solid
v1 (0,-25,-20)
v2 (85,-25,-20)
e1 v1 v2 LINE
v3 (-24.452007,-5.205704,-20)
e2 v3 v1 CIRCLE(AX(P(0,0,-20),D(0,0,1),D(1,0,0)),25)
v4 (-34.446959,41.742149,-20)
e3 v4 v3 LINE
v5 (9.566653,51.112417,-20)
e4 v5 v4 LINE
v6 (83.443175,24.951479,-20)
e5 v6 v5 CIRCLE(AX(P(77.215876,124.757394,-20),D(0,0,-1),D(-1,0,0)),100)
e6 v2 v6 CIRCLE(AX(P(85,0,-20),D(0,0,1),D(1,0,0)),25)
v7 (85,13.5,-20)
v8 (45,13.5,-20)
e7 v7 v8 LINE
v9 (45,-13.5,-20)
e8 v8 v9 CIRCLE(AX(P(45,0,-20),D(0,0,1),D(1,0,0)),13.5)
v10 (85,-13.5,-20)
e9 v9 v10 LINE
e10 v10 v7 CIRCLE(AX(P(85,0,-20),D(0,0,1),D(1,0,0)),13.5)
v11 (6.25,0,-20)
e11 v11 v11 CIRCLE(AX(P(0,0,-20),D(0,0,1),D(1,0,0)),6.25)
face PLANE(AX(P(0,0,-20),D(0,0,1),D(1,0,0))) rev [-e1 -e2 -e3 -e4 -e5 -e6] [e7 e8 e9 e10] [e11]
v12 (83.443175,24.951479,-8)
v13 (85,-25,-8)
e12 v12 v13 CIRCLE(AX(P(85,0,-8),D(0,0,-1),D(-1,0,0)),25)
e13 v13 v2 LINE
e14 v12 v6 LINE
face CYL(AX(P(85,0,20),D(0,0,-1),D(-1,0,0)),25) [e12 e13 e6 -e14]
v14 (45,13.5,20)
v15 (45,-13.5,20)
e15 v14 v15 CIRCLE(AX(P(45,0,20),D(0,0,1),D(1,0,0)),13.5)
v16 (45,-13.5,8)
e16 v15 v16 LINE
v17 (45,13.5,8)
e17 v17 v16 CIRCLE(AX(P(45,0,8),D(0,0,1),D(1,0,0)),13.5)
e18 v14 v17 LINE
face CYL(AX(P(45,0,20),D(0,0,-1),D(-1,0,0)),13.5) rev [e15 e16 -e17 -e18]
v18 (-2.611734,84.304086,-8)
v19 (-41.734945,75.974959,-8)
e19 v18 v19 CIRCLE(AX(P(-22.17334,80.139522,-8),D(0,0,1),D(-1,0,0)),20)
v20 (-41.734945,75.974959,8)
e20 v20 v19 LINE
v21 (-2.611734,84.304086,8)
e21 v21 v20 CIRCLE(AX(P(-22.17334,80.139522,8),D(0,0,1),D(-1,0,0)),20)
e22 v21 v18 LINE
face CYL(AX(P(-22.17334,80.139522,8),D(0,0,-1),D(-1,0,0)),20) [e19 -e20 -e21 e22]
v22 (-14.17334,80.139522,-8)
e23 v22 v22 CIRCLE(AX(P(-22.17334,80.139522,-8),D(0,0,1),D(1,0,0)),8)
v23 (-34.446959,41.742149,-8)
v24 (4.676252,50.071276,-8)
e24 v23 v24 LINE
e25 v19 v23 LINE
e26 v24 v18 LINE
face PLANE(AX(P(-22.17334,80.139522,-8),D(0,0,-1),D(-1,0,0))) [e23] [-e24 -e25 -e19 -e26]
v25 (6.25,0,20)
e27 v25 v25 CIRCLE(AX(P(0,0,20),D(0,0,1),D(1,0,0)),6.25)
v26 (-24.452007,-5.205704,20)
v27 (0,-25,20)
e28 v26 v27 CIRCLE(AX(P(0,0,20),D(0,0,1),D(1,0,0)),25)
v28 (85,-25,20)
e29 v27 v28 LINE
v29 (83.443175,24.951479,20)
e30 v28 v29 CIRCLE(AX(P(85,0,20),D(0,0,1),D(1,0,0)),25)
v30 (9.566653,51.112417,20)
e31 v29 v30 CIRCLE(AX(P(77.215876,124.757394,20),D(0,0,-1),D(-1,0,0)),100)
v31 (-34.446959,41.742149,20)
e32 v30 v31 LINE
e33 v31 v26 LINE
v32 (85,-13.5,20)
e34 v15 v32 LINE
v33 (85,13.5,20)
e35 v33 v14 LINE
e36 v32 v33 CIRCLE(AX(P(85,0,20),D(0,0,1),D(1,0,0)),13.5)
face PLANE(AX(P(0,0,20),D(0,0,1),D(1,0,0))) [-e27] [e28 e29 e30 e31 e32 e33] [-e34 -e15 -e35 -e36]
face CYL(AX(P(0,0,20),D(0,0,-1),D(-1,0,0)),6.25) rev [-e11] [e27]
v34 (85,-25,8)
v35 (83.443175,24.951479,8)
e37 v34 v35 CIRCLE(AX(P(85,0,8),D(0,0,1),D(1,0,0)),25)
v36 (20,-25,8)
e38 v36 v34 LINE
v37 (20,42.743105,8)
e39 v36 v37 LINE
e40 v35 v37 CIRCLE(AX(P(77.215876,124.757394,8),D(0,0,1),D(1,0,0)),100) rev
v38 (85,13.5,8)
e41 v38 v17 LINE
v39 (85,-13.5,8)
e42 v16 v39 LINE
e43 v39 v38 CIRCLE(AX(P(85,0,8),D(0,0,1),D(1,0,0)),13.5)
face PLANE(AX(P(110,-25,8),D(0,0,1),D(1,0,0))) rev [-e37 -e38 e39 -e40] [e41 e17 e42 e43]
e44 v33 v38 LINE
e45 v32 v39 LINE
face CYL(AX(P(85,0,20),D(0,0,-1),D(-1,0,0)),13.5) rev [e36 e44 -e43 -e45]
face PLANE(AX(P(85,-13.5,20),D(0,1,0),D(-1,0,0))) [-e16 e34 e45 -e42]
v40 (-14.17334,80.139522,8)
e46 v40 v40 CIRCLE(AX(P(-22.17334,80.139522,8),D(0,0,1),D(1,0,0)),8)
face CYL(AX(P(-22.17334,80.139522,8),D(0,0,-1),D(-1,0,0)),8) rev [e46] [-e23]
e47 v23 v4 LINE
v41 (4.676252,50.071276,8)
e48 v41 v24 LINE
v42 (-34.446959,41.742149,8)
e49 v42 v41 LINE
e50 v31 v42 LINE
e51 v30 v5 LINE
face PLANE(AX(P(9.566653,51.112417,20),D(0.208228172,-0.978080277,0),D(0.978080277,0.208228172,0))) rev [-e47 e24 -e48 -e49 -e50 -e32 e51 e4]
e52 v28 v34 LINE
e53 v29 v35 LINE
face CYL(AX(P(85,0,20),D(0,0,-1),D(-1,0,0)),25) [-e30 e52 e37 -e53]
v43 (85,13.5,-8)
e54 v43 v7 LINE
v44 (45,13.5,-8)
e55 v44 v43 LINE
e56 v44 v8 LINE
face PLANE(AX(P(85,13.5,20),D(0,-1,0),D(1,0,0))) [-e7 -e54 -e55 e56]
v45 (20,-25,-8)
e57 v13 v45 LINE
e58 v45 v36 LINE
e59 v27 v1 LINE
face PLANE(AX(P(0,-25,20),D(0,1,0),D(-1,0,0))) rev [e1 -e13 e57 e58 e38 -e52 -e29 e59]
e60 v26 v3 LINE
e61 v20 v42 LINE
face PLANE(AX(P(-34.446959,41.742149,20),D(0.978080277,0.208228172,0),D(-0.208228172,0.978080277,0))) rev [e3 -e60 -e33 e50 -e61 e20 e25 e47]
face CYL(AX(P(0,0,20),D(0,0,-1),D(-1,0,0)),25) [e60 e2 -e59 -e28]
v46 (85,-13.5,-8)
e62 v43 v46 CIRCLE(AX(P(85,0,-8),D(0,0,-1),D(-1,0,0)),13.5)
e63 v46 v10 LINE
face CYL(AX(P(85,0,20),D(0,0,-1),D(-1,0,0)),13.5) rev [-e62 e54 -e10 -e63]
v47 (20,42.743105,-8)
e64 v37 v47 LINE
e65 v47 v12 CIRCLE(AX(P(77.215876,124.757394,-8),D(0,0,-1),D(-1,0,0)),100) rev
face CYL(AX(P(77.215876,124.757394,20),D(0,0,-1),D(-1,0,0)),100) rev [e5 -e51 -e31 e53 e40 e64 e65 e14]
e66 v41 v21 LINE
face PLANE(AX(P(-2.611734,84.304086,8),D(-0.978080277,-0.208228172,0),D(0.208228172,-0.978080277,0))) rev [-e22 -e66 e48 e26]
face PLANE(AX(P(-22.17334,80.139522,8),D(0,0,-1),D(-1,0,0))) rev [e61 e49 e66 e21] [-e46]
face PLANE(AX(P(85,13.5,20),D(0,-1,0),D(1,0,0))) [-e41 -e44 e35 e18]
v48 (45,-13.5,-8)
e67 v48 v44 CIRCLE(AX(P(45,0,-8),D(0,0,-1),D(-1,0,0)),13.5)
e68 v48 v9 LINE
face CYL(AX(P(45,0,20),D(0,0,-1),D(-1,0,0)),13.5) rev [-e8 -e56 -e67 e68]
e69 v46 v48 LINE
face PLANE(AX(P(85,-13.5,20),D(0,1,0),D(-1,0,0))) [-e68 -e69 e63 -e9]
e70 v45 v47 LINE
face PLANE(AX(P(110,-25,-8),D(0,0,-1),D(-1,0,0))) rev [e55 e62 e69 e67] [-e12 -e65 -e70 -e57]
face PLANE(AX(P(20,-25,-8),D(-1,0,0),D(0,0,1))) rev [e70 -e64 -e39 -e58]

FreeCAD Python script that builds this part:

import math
import FreeCAD as App
import Part
import Sketcher

doc = App.newDocument("Part")
body = doc.addObject("PartDesign::Body", "Body")

# Sketch on XY plane
sketch1 = doc.addObject("Sketcher::SketchObject", "Sketch")
body.addObject(sketch1)
sketch1.AttachmentSupport = (doc.XY_Plane, [""])
sketch1.MapMode = "FlatFace"
sketch1.addGeometry([
    Part.LineSegment(App.Vector(0, -25, 0), App.Vector(85, -25, 0)),  # 0
    Part.ArcOfCircle(Part.Circle(App.Vector(85, 0, 0), App.Vector(0, 0, 1), 25), math.radians(-90), math.radians(93.57029)),  # 1
    Part.ArcOfCircle(Part.Circle(App.Vector(77.215876, 124.757394, 0), App.Vector(0, 0, 1), 100), math.radians(-132.570137), math.radians(-86.42971)),  # 2
    Part.LineSegment(App.Vector(9.566653, 51.112417, 0), App.Vector(-34.446959, 41.742149, 0)),  # 3
    Part.LineSegment(App.Vector(-34.446959, 41.742149, 0), App.Vector(-24.452007, -5.205704, 0)),  # 4
    Part.ArcOfCircle(Part.Circle(App.Vector(0, 0, 0), App.Vector(0, 0, 1), 25), math.radians(-167.981461), math.radians(-90)),  # 5
    Part.Circle(App.Vector(0, 0, 0), App.Vector(0, 0, 1), 6.25),  # 6
    Part.ArcOfCircle(Part.Circle(App.Vector(85, 0, 0), App.Vector(0, 0, 1), 13.5), math.radians(-90), math.radians(90)),  # 7
    Part.LineSegment(App.Vector(85, -13.5, 0), App.Vector(45, -13.5, 0)),  # 8
    Part.ArcOfCircle(Part.Circle(App.Vector(45, 0, 0), App.Vector(0, 0, 1), 13.5), math.radians(90), math.radians(270)),  # 9
    Part.LineSegment(App.Vector(45, 13.5, 0), App.Vector(85, 13.5, 0)),  # 10
], False)
sketch1.addConstraint([
    Sketcher.Constraint("Tangent", 0, 2, 1, 1),
    Sketcher.Constraint("Tangent", 1, 2, 2, 2),
    Sketcher.Constraint("Coincident", 2, 1, 3, 1),
    Sketcher.Constraint("Coincident", 3, 2, 4, 1),
    Sketcher.Constraint("Tangent", 4, 2, 5, 1),
    Sketcher.Constraint("Tangent", 5, 2, 0, 1),
    Sketcher.Constraint("Tangent", 7, 1, 8, 1),
    Sketcher.Constraint("Tangent", 8, 2, 9, 2),
    Sketcher.Constraint("Tangent", 9, 1, 10, 1),
    Sketcher.Constraint("Tangent", 10, 2, 7, 2),
    Sketcher.Constraint("Horizontal", 0),
    Sketcher.Constraint("Horizontal", 8),
    Sketcher.Constraint("Horizontal", 10),
    Sketcher.Constraint("Coincident", 5, 3, -1, 1),
    Sketcher.Constraint("Coincident", 6, 3, -1, 1),
    Sketcher.Constraint("Coincident", 7, 3, 1, 3),
    Sketcher.Constraint("Equal", 1, 5),
    Sketcher.Constraint("Perpendicular", 3, 4),
    Sketcher.Constraint("Radius", 1, 25.0),
    Sketcher.Constraint("Radius", 2, 100.0),
    Sketcher.Constraint("Diameter", 6, 12.5),
    Sketcher.Constraint("Radius", 7, 13.5),
    Sketcher.Constraint("DistanceX", 0, 1, 0, 2, 85.0),
    Sketcher.Constraint("DistanceX", 8, 2, 8, 1, 40.0),
    Sketcher.Constraint("Distance", 3, 45.0),
    Sketcher.Constraint("Distance", 4, 48.0),
    Sketcher.Constraint("DistanceY", -1, 1, 1, 2, 24.951479),
])
pad1 = doc.addObject("PartDesign::Pad", "Pad")
body.addObject(pad1)
pad1.Profile = sketch1
pad1.Length = 40
pad1.Midplane = True

# Sketch on XZ plane
sketch2 = doc.addObject("Sketcher::SketchObject", "Sketch001")
body.addObject(sketch2)
sketch2.AttachmentSupport = (doc.XZ_Plane, [""])
sketch2.MapMode = "FlatFace"
sketch2.addGeometry([
    Part.LineSegment(App.Vector(20, -8, 0), App.Vector(20, 8, 0)),
    Part.LineSegment(App.Vector(20, 8, 0), App.Vector(110, 8, 0)),
    Part.LineSegment(App.Vector(110, 8, 0), App.Vector(110, -8, 0)),
    Part.LineSegment(App.Vector(110, -8, 0), App.Vector(20, -8, 0)),
], False)
sketch2.addConstraint([
    Sketcher.Constraint("Coincident", 0, 2, 1, 1),
    Sketcher.Constraint("Coincident", 1, 2, 2, 1),
    Sketcher.Constraint("Coincident", 2, 2, 3, 1),
    Sketcher.Constraint("Coincident", 3, 2, 0, 1),
    Sketcher.Constraint("Vertical", 0),
    Sketcher.Constraint("Horizontal", 1),
    Sketcher.Constraint("Vertical", 2),
    Sketcher.Constraint("Horizontal", 3),
    Sketcher.Constraint("DistanceX", 1, 1, 1, 2, 90.0),
    Sketcher.Constraint("DistanceY", 0, 1, 0, 2, 16.0),
    Sketcher.Constraint("DistanceX", -1, 1, 0, 2, 20.0),
    Sketcher.Constraint("DistanceY", -1, 1, 0, 2, 8.0),
])
pocket1 = doc.addObject("PartDesign::Pocket", "Pocket")
body.addObject(pocket1)
pocket1.Profile = sketch2
pocket1.Type = "ThroughAll"
pocket1.Midplane = True

# Sketch on XY plane
sketch3 = doc.addObject("Sketcher::SketchObject", "Sketch002")
body.addObject(sketch3)
sketch3.AttachmentSupport = (doc.XY_Plane, [""])
sketch3.MapMode = "FlatFace"
sketch3.addGeometry([
    Part.LineSegment(App.Vector(-41.734945, 75.974959, 0), App.Vector(-34.446959, 41.742149, 0)),  # 0
    Part.LineSegment(App.Vector(-34.446959, 41.742149, 0), App.Vector(4.676252, 50.071276, 0)),  # 1
    Part.LineSegment(App.Vector(4.676252, 50.071276, 0), App.Vector(-2.611734, 84.304086, 0)),  # 2
    Part.ArcOfCircle(Part.Circle(App.Vector(-22.17334, 80.139522, 0), App.Vector(0, 0, 1), 20), math.radians(12.018539), math.radians(192.018539)),  # 3
    Part.Circle(App.Vector(-22.17334, 80.139522, 0), App.Vector(0, 0, 1), 8),  # 4
], False)
sketch3.addConstraint([
    Sketcher.Constraint("Coincident", 0, 2, 1, 1),
    Sketcher.Constraint("Coincident", 1, 2, 2, 1),
    Sketcher.Constraint("Tangent", 2, 2, 3, 1),
    Sketcher.Constraint("Tangent", 3, 2, 0, 1),
    Sketcher.Constraint("Coincident", 4, 3, 3, 3),
    Sketcher.Constraint("Perpendicular", 0, 1),
    Sketcher.Constraint("Perpendicular", 1, 2),
    Sketcher.Constraint("Diameter", 4, 16.0),
    Sketcher.Constraint("Radius", 3, 20.0),
    Sketcher.Constraint("Distance", 0, 35.0),
    Sketcher.Constraint("DistanceX", 3, 3, -1, 1, 22.17334),
    Sketcher.Constraint("DistanceX", 0, 2, -1, 1, 34.446959),
    Sketcher.Constraint("DistanceY", -1, 1, 0, 2, 41.742149),
])
pad2 = doc.addObject("PartDesign::Pad", "Pad001")
body.addObject(pad2)
pad2.Profile = sketch3
pad2.Length = 16
pad2.Midplane = True

doc.recompute()
